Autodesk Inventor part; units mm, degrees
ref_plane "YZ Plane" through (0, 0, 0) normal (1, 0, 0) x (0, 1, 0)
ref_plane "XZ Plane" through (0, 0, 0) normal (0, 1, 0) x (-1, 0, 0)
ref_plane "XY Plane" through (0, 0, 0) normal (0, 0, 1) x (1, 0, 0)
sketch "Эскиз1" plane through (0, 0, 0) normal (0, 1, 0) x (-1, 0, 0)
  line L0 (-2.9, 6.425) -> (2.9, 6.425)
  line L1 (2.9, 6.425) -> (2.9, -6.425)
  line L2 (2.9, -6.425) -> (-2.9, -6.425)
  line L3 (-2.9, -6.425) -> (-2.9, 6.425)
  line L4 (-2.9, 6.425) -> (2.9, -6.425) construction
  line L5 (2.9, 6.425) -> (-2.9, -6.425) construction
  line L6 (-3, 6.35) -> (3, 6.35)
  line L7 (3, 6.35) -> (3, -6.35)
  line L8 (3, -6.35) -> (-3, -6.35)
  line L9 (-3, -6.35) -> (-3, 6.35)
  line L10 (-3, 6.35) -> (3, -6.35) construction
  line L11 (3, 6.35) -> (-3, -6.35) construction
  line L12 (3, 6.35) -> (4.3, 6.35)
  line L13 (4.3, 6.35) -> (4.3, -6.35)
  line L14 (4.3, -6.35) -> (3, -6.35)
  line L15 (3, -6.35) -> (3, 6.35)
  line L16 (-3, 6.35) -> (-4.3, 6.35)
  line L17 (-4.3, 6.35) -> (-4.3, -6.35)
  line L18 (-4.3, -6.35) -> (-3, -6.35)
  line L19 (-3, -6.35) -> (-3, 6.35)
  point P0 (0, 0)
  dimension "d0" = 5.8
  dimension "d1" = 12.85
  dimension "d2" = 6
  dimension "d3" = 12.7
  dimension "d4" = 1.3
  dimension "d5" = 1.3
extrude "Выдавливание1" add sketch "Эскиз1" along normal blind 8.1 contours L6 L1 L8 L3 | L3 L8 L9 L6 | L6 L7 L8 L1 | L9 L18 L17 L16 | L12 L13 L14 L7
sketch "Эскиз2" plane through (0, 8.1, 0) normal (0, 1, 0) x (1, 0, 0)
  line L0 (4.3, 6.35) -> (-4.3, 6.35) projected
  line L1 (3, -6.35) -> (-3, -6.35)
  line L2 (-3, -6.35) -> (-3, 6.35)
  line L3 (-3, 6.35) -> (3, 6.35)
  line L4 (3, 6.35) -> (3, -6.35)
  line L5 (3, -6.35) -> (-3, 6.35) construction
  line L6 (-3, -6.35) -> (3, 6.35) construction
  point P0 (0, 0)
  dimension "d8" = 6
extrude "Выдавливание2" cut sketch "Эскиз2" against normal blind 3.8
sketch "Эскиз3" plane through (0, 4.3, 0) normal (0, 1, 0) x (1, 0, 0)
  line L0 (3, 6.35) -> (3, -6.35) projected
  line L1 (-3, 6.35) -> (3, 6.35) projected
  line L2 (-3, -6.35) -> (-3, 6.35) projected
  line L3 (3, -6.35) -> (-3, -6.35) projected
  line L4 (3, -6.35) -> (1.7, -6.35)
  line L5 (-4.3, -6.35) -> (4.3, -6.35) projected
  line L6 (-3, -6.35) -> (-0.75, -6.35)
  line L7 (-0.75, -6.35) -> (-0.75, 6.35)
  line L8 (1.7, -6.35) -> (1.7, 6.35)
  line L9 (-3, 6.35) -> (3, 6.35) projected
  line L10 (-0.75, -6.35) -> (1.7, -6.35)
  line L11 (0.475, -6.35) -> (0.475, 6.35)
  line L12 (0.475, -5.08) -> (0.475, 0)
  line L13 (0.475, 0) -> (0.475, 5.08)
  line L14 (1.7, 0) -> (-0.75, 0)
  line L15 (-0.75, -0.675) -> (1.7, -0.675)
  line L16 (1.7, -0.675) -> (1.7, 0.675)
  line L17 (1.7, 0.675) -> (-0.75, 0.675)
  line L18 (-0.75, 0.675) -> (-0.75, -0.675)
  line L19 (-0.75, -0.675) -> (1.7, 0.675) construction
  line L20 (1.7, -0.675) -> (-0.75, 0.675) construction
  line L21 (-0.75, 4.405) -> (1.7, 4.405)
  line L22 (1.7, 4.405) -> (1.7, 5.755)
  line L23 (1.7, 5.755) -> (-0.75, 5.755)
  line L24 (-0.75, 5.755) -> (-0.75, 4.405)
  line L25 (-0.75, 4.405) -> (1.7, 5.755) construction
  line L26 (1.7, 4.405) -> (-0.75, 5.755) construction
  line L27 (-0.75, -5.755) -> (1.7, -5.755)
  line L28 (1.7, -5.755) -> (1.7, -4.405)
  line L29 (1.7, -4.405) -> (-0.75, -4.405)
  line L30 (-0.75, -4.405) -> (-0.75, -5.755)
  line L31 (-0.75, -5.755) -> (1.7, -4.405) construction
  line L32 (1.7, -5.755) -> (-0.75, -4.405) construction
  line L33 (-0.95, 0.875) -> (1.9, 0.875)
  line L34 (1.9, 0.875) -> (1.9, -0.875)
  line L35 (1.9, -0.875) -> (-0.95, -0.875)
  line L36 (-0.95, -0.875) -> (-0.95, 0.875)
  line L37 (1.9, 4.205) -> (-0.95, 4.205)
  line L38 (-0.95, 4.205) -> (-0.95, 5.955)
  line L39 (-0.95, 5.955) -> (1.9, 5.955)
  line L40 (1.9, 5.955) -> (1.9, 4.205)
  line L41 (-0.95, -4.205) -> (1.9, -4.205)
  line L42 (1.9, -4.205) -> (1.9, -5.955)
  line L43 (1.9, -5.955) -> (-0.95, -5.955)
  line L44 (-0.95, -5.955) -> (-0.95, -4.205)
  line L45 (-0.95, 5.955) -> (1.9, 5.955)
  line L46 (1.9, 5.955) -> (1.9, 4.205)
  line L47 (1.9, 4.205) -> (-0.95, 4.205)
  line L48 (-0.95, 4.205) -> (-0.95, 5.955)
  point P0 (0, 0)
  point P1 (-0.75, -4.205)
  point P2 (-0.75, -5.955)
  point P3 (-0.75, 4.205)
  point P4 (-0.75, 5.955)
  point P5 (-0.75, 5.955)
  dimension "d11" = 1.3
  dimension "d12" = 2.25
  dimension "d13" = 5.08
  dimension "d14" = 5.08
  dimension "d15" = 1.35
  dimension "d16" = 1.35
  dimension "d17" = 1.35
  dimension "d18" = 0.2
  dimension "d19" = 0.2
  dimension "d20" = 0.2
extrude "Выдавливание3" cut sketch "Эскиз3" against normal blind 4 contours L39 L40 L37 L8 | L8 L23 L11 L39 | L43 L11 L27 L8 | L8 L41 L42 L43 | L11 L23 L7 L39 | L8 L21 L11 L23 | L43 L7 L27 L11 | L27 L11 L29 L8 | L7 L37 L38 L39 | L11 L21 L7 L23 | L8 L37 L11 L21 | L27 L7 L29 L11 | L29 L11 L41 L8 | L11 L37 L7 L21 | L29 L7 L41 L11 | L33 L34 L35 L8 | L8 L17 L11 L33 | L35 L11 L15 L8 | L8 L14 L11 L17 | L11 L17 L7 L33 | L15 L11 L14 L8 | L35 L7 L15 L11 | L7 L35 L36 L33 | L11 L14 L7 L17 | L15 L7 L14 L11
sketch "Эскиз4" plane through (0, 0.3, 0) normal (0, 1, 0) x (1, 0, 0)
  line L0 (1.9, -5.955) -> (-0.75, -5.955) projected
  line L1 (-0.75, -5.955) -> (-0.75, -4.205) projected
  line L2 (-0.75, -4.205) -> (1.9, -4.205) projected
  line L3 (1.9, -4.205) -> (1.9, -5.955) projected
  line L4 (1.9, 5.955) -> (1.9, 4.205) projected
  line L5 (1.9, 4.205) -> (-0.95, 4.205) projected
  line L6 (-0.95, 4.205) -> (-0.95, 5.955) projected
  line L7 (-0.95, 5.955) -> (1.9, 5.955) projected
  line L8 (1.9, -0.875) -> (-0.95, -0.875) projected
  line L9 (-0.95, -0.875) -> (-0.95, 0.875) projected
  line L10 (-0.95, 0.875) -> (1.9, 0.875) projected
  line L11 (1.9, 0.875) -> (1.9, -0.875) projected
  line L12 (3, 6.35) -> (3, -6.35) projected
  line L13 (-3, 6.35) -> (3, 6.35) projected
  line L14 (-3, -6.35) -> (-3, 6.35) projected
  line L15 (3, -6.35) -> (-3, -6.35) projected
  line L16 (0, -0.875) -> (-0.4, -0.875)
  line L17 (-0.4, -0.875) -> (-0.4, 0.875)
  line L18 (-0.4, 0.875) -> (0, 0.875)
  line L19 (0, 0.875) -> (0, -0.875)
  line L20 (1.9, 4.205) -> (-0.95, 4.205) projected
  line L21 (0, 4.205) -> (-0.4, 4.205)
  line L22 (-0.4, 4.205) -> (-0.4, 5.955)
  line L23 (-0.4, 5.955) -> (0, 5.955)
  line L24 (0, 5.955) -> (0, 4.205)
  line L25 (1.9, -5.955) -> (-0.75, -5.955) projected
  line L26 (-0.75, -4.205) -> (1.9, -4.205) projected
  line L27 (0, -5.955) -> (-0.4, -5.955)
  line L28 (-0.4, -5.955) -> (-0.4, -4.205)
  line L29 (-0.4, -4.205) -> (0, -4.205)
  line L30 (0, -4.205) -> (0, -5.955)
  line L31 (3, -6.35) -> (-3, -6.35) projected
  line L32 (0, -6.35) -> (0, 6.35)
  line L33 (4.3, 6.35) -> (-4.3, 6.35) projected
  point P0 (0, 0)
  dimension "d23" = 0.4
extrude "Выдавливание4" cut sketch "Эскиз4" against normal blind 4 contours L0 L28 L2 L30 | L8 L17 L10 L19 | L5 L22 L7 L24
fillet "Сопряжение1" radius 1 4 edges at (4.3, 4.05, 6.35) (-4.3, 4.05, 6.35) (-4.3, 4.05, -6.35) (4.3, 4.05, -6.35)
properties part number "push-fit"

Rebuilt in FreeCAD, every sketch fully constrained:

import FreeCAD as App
import Part
import Sketcher


def edges_at(feature, points):
    """Names of the edges that pass closest to the given points."""
    edges = feature.Shape.Edges
    near = lambda p: min(range(len(edges)), key=lambda i: edges[i].distToShape(Part.Vertex(*p))[0])
    return sorted({f"Edge{near(p) + 1}" for p in points})

doc = App.newDocument("Part")
body = doc.addObject("PartDesign::Body", "Body")

sketch1 = body.newObject("Sketcher::SketchObject", "Sketch")
sketch1.AttachmentSupport = (doc.getObject("XZ_Plane"), [""])
sketch1.MapMode = "FlatFace"
sketch1.addGeometry([
    Part.LineSegment(App.Vector(4, 6, 0), App.Vector(4, -6, 0)),
    Part.LineSegment(App.Vector(4, -6, 0), App.Vector(-4, -6, 0)),
    Part.LineSegment(App.Vector(-4, -6, 0), App.Vector(-4, 6, 0)),
    Part.LineSegment(App.Vector(-4, 6, 0), App.Vector(4, 6, 0)),
], False)
sketch1.addConstraint([
    Sketcher.Constraint("Coincident", 0, 2, 1, 1),
    Sketcher.Constraint("Coincident", 1, 2, 2, 1),
    Sketcher.Constraint("Coincident", 2, 2, 3, 1),
    Sketcher.Constraint("Coincident", 3, 2, 0, 1),
    Sketcher.Constraint("Vertical", 0),
    Sketcher.Constraint("Horizontal", 1),
    Sketcher.Constraint("Vertical", 2),
    Sketcher.Constraint("Horizontal", 3),
    Sketcher.Constraint("Symmetric", 0, 2, 2, 2, -1, 1),
    Sketcher.Constraint("DistanceY", 0, 2, 0, 1, 12.7),
    Sketcher.Constraint("DistanceX", 1, 2, 1, 1, 8.6),
])
pad1 = body.newObject("PartDesign::Pad", "Pad")
pad1.Profile = sketch1
pad1.Length = 8.1
pad1.Reversed = True

sketch2 = body.newObject("Sketcher::SketchObject", "Sketch001")
sketch2.AttachmentSupport = (doc.getObject("XZ_Plane"), [""])
sketch2.MapMode = "FlatFace"
sketch2.AttachmentOffset = App.Placement(App.Vector(0, 0, -8.1), App.Rotation())
sketch2.addGeometry([
    Part.LineSegment(App.Vector(3, 6, 0), App.Vector(3, -6, 0)),
    Part.LineSegment(App.Vector(3, -6, 0), App.Vector(-3, -6, 0)),
    Part.LineSegment(App.Vector(-3, -6, 0), App.Vector(-3, 6, 0)),
    Part.LineSegment(App.Vector(-3, 6, 0), App.Vector(3, 6, 0)),
], False)
sketch2.addConstraint([
    Sketcher.Constraint("Coincident", 0, 2, 1, 1),
    Sketcher.Constraint("Coincident", 1, 2, 2, 1),
    Sketcher.Constraint("Coincident", 2, 2, 3, 1),
    Sketcher.Constraint("Coincident", 3, 2, 0, 1),
    Sketcher.Constraint("Vertical", 0),
    Sketcher.Constraint("Horizontal", 1),
    Sketcher.Constraint("Vertical", 2),
    Sketcher.Constraint("Horizontal", 3),
    Sketcher.Constraint("Symmetric", 0, 2, 2, 2, -1, 1),
    Sketcher.Constraint("DistanceX", 1, 2, 1, 1, 6.0),
    Sketcher.Constraint("DistanceY", 0, 2, 0, 1, 12.7),
])
pocket1 = body.newObject("PartDesign::Pocket", "Pocket")
pocket1.Profile = sketch2
pocket1.Length = 3.8
pocket1.Reversed = True

sketch3 = body.newObject("Sketcher::SketchObject", "Sketch002")
sketch3.AttachmentSupport = (doc.getObject("XZ_Plane"), [""])
sketch3.MapMode = "FlatFace"
sketch3.AttachmentOffset = App.Placement(App.Vector(0, 0, -4.3), App.Rotation())
sketch3.addGeometry([
    Part.LineSegment(App.Vector(1.9, -6, 0), App.Vector(-0.9, -6, 0)),
    Part.LineSegment(App.Vector(-0.9, -6, 0), App.Vector(-0.9, -4.2, 0)),
    Part.LineSegment(App.Vector(-0.9, -4.2, 0), App.Vector(1.9, -4.2, 0)),
    Part.LineSegment(App.Vector(1.9, -4.2, 0), App.Vector(1.9, -6, 0)),
    Part.LineSegment(App.Vector(1.9, 6, 0), App.Vector(1.9, 4.2, 0)),
    Part.LineSegment(App.Vector(1.9, 4.2, 0), App.Vector(-0.8, 4.2, 0)),
    Part.LineSegment(App.Vector(-0.8, 4.2, 0), App.Vector(-0.8, 6, 0)),
    Part.LineSegment(App.Vector(-0.8, 6, 0), App.Vector(1.9, 6, 0)),
    Part.LineSegment(App.Vector(1.9, -0.9, 0), App.Vector(-0.9, -0.9, 0)),
    Part.LineSegment(App.Vector(-0.9, -0.9, 0), App.Vector(-0.9, 0.9, 0)),
    Part.LineSegment(App.Vector(-0.9, 0.9, 0), App.Vector(1.9, 0.9, 0)),
    Part.LineSegment(App.Vector(1.9, 0.9, 0), App.Vector(1.9, -0.9, 0)),
], False)
sketch3.addConstraint([
    Sketcher.Constraint("Coincident", 0, 2, 1, 1),
    Sketcher.Constraint("Coincident", 1, 2, 2, 1),
    Sketcher.Constraint("Coincident", 2, 2, 3, 1),
    Sketcher.Constraint("Coincident", 3, 2, 0, 1),
    Sketcher.Constraint("Coincident", 4, 2, 5, 1),
    Sketcher.Constraint("Coincident", 5, 2, 6, 1),
    Sketcher.Constraint("Coincident", 6, 2, 7, 1),
    Sketcher.Constraint("Coincident", 7, 2, 4, 1),
    Sketcher.Constraint("Coincident", 8, 2, 9, 1),
    Sketcher.Constraint("Coincident", 9, 2, 10, 1),
    Sketcher.Constraint("Coincident", 10, 2, 11, 1),
    Sketcher.Constraint("Coincident", 11, 2, 8, 1),
    Sketcher.Constraint("Horizontal", 0),
    Sketcher.Constraint("Vertical", 1),
    Sketcher.Constraint("Horizontal", 2),
    Sketcher.Constraint("Vertical", 3),
    Sketcher.Constraint("Vertical", 4),
    Sketcher.Constraint("Horizontal", 5),
    Sketcher.Constraint("Vertical", 6),
    Sketcher.Constraint("Horizontal", 7),
    Sketcher.Constraint("Horizontal", 8),
    Sketcher.Constraint("Vertical", 9),
    Sketcher.Constraint("Horizontal", 10),
    Sketcher.Constraint("Vertical", 11),
    Sketcher.Constraint("Symmetric", 2, 2, 4, 2, -1),
    Sketcher.Constraint("Vertical", 1, 2, 8, 2),
    Sketcher.Constraint("Vertical", 7, 2, 10, 2),
    Sketcher.Constraint("Equal", 3, 4),
    Sketcher.Constraint("Equal", 6, 9),
    Sketcher.Constraint("DistanceX", 1, 2, 5, 2, 0.2),
    Sketcher.Constraint("DistanceY", 0, 2, 8, 2, 5.08),
    Sketcher.Constraint("DistanceY", 8, 2, 5, 2, 5.08),
    Sketcher.Constraint("DistanceX", 0, 2, 0, 1, 2.85),
    Sketcher.Constraint("DistanceY", 1, 1, 1, 2, 1.75),
    Sketcher.Constraint("DistanceX", -1, 1, 2, 2, 1.9),
])
pocket2 = body.newObject("PartDesign::Pocket", "Pocket001")
pocket2.Profile = sketch3
pocket2.Length = 4
pocket2.Reversed = True

sketch4 = body.newObject("Sketcher::SketchObject", "Sketch003")
sketch4.AttachmentSupport = (doc.getObject("XZ_Plane"), [""])
sketch4.MapMode = "FlatFace"
sketch4.AttachmentOffset = App.Placement(App.Vector(0, 0, -0.3), App.Rotation())
sketch4.addGeometry([
    Part.LineSegment(App.Vector(-0.4, 5.96, 0), App.Vector(0, 5.96, 0)),
    Part.LineSegment(App.Vector(0, 5.96, 0), App.Vector(0, 4.21, 0)),
    Part.LineSegment(App.Vector(0, 4.21, 0), App.Vector(-0.4, 4.21, 0)),
    Part.LineSegment(App.Vector(-0.4, 4.21, 0), App.Vector(-0.4, 5.96, 0)),
    Part.LineSegment(App.Vector(-0.4, 0.88, 0), App.Vector(0, 0.88, 0)),
    Part.LineSegment(App.Vector(0, 0.88, 0), App.Vector(0, -0.88, 0)),
    Part.LineSegment(App.Vector(0, -0.88, 0), App.Vector(-0.4, -0.88, 0)),
    Part.LineSegment(App.Vector(-0.4, -0.88, 0), App.Vector(-0.4, 0.88, 0)),
    Part.LineSegment(App.Vector(-0.4, -4.21, 0), App.Vector(0, -4.21, 0)),
    Part.LineSegment(App.Vector(0, -4.21, 0), App.Vector(0, -5.96, 0)),
    Part.LineSegment(App.Vector(0, -5.96, 0), App.Vector(-0.4, -5.96, 0)),
    Part.LineSegment(App.Vector(-0.4, -5.96, 0), App.Vector(-0.4, -4.21, 0)),
], False)
sketch4.addConstraint([
    Sketcher.Constraint("Coincident", 0, 2, 1, 1),
    Sketcher.Constraint("Coincident", 1, 2, 2, 1),
    Sketcher.Constraint("Coincident", 2, 2, 3, 1),
    Sketcher.Constraint("Coincident", 3, 2, 0, 1),
    Sketcher.Constraint("Coincident", 4, 2, 5, 1),
    Sketcher.Constraint("Coincident", 5, 2, 6, 1),
    Sketcher.Constraint("Coincident", 6, 2, 7, 1),
    Sketcher.Constraint("Coincident", 7, 2, 4, 1),
    Sketcher.Constraint("Coincident", 8, 2, 9, 1),
    Sketcher.Constraint("Coincident", 9, 2, 10, 1),
    Sketcher.Constraint("Coincident", 10, 2, 11, 1),
    Sketcher.Constraint("Coincident", 11, 2, 8, 1),
    Sketcher.Constraint("Horizontal", 0),
    Sketcher.Constraint("Vertical", 1),
    Sketcher.Constraint("Horizontal", 2),
    Sketcher.Constraint("Vertical", 3),
    Sketcher.Constraint("Horizontal", 4),
    Sketcher.Constraint("Vertical", 5),
    Sketcher.Constraint("Horizontal", 6),
    Sketcher.Constraint("Vertical", 7),
    Sketcher.Constraint("Horizontal", 8),
    Sketcher.Constraint("Vertical", 9),
    Sketcher.Constraint("Horizontal", 10),
    Sketcher.Constraint("Vertical", 11),
    Sketcher.Constraint("Symmetric", 4, 2, 5, 2, -1, 1),
    Sketcher.Constraint("Symmetric", 1, 2, 8, 2, -1, 1),
    Sketcher.Constraint("Symmetric", 0, 2, 9, 2, -1),
    Sketcher.Constraint("Vertical", 3, 2, 6, 2),
    Sketcher.Constraint("Vertical", 7, 2, 10, 2),
    Sketcher.Constraint("Equal", 3, 5),
    Sketcher.Constraint("DistanceX", 0, 1, 0, 2, 0.4),
    Sketcher.Constraint("DistanceY", 1, 2, 1, 1, 1.75),
    Sketcher.Constraint("DistanceY", 4, 2, 1, 2, 3.33),
])
pocket3 = body.newObject("PartDesign::Pocket", "Pocket002")
pocket3.Profile = sketch4
pocket3.Length = 4
pocket3.Reversed = True
doc.recompute()

fillet = body.newObject("PartDesign::Fillet", "Fillet")
fillet.Base = (pocket3, edges_at(pocket3, [
    (4.3, 4.05, 6.35),
    (-4.3, 4.05, 6.35),
    (-4.3, 4.05, -6.35),
    (4.3, 4.05, -6.35),
]))
fillet.Radius = 1

doc.recompute()
